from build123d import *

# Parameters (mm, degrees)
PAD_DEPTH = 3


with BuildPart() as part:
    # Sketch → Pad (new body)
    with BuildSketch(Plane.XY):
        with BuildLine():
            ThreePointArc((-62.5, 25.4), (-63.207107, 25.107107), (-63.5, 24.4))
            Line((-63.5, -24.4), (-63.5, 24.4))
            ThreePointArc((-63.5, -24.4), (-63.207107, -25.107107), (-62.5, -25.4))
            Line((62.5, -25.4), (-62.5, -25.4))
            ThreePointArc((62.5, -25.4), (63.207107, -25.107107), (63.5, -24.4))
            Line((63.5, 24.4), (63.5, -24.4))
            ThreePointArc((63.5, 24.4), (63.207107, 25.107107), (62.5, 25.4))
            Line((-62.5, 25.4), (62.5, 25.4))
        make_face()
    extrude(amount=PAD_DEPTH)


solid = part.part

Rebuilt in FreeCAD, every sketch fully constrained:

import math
import FreeCAD as App
import Part
import Sketcher

V = App.Vector
Q = App.Units.Quantity

doc = App.newDocument("Part")
params = doc.addObject("Spreadsheet::Sheet", "Params")
for row, (alias, value) in enumerate([
    ("sketch1_radius", "0.999999 mm"),
    ("sketch1_width", "125 mm"),
    ("sketch1_height", "48.8 mm"),
    ("pad1_length", "3 mm"),
], start=1):
    params.set(f"A{row}", alias)
    params.set(f"B{row}", "=" + value)
    params.setAlias(f"B{row}", alias)

body = doc.addObject("PartDesign::Body", "Body")

# Sketch on XY plane
sketch1 = doc.addObject("Sketcher::SketchObject", "Sketch")
body.addObject(sketch1)
sketch1.AttachmentSupport = (doc.XY_Plane, [""])
sketch1.MapMode = "FlatFace"
sketch1.addGeometry([
    Part.ArcOfCircle(Part.Circle(V(-62.5, 24.4, 0), V(0, 0, 1), 1), math.radians(90), math.radians(180)),  # 0
    Part.LineSegment(V(-63.5, 24.4, 0), V(-63.5, -24.4, 0)),  # 1
    Part.ArcOfCircle(Part.Circle(V(-62.5, -24.4, 0), V(0, 0, 1), 1), math.radians(180), math.radians(270)),  # 2
    Part.LineSegment(V(-62.5, -25.4, 0), V(62.5, -25.4, 0)),  # 3
    Part.ArcOfCircle(Part.Circle(V(62.5, -24.4, 0), V(0, 0, 1), 1), math.radians(-90), math.radians(0)),  # 4
    Part.LineSegment(V(63.5, -24.4, 0), V(63.5, 24.4, 0)),  # 5
    Part.ArcOfCircle(Part.Circle(V(62.5, 24.4, 0), V(0, 0, 1), 1), math.radians(0), math.radians(90)),  # 6
    Part.LineSegment(V(62.5, 25.4, 0), V(-62.5, 25.4, 0)),  # 7
], False)
sketch1.addConstraint([
    Sketcher.Constraint("Tangent", 0, 2, 1, 1),
    Sketcher.Constraint("Tangent", 1, 2, 2, 1),
    Sketcher.Constraint("Tangent", 2, 2, 3, 1),
    Sketcher.Constraint("Tangent", 3, 2, 4, 1),
    Sketcher.Constraint("Tangent", 4, 2, 5, 1),
    Sketcher.Constraint("Tangent", 5, 2, 6, 1),
    Sketcher.Constraint("Tangent", 6, 2, 7, 1),
    Sketcher.Constraint("Tangent", 7, 2, 0, 1),
    Sketcher.Constraint("Vertical", 1),
    Sketcher.Constraint("Horizontal", 3),
    Sketcher.Constraint("Vertical", 5),
    Sketcher.Constraint("Horizontal", 7),
    Sketcher.Constraint("Equal", 0, 2),
    Sketcher.Constraint("Equal", 2, 4),
    Sketcher.Constraint("Equal", 4, 6),
    Sketcher.Constraint("Symmetric", 0, 3, 4, 3, -1, 1),
    Sketcher.Constraint("Radius", 0, Q("0.999999 mm")),
    Sketcher.Constraint("DistanceX", 3, 1, 3, 2, Q("125 mm")),
    Sketcher.Constraint("DistanceY", 1, 2, 1, 1, Q("48.8 mm")),
])
sketch1.setExpression("Constraints[16]", "Params.sketch1_radius")
sketch1.setExpression("Constraints[17]", "Params.sketch1_width")
sketch1.setExpression("Constraints[18]", "Params.sketch1_height")
pad1 = doc.addObject("PartDesign::Pad", "Pad")
body.addObject(pad1)
pad1.Profile = sketch1
pad1.setExpression("Length", "Params.pad1_length")

doc.recompute()
